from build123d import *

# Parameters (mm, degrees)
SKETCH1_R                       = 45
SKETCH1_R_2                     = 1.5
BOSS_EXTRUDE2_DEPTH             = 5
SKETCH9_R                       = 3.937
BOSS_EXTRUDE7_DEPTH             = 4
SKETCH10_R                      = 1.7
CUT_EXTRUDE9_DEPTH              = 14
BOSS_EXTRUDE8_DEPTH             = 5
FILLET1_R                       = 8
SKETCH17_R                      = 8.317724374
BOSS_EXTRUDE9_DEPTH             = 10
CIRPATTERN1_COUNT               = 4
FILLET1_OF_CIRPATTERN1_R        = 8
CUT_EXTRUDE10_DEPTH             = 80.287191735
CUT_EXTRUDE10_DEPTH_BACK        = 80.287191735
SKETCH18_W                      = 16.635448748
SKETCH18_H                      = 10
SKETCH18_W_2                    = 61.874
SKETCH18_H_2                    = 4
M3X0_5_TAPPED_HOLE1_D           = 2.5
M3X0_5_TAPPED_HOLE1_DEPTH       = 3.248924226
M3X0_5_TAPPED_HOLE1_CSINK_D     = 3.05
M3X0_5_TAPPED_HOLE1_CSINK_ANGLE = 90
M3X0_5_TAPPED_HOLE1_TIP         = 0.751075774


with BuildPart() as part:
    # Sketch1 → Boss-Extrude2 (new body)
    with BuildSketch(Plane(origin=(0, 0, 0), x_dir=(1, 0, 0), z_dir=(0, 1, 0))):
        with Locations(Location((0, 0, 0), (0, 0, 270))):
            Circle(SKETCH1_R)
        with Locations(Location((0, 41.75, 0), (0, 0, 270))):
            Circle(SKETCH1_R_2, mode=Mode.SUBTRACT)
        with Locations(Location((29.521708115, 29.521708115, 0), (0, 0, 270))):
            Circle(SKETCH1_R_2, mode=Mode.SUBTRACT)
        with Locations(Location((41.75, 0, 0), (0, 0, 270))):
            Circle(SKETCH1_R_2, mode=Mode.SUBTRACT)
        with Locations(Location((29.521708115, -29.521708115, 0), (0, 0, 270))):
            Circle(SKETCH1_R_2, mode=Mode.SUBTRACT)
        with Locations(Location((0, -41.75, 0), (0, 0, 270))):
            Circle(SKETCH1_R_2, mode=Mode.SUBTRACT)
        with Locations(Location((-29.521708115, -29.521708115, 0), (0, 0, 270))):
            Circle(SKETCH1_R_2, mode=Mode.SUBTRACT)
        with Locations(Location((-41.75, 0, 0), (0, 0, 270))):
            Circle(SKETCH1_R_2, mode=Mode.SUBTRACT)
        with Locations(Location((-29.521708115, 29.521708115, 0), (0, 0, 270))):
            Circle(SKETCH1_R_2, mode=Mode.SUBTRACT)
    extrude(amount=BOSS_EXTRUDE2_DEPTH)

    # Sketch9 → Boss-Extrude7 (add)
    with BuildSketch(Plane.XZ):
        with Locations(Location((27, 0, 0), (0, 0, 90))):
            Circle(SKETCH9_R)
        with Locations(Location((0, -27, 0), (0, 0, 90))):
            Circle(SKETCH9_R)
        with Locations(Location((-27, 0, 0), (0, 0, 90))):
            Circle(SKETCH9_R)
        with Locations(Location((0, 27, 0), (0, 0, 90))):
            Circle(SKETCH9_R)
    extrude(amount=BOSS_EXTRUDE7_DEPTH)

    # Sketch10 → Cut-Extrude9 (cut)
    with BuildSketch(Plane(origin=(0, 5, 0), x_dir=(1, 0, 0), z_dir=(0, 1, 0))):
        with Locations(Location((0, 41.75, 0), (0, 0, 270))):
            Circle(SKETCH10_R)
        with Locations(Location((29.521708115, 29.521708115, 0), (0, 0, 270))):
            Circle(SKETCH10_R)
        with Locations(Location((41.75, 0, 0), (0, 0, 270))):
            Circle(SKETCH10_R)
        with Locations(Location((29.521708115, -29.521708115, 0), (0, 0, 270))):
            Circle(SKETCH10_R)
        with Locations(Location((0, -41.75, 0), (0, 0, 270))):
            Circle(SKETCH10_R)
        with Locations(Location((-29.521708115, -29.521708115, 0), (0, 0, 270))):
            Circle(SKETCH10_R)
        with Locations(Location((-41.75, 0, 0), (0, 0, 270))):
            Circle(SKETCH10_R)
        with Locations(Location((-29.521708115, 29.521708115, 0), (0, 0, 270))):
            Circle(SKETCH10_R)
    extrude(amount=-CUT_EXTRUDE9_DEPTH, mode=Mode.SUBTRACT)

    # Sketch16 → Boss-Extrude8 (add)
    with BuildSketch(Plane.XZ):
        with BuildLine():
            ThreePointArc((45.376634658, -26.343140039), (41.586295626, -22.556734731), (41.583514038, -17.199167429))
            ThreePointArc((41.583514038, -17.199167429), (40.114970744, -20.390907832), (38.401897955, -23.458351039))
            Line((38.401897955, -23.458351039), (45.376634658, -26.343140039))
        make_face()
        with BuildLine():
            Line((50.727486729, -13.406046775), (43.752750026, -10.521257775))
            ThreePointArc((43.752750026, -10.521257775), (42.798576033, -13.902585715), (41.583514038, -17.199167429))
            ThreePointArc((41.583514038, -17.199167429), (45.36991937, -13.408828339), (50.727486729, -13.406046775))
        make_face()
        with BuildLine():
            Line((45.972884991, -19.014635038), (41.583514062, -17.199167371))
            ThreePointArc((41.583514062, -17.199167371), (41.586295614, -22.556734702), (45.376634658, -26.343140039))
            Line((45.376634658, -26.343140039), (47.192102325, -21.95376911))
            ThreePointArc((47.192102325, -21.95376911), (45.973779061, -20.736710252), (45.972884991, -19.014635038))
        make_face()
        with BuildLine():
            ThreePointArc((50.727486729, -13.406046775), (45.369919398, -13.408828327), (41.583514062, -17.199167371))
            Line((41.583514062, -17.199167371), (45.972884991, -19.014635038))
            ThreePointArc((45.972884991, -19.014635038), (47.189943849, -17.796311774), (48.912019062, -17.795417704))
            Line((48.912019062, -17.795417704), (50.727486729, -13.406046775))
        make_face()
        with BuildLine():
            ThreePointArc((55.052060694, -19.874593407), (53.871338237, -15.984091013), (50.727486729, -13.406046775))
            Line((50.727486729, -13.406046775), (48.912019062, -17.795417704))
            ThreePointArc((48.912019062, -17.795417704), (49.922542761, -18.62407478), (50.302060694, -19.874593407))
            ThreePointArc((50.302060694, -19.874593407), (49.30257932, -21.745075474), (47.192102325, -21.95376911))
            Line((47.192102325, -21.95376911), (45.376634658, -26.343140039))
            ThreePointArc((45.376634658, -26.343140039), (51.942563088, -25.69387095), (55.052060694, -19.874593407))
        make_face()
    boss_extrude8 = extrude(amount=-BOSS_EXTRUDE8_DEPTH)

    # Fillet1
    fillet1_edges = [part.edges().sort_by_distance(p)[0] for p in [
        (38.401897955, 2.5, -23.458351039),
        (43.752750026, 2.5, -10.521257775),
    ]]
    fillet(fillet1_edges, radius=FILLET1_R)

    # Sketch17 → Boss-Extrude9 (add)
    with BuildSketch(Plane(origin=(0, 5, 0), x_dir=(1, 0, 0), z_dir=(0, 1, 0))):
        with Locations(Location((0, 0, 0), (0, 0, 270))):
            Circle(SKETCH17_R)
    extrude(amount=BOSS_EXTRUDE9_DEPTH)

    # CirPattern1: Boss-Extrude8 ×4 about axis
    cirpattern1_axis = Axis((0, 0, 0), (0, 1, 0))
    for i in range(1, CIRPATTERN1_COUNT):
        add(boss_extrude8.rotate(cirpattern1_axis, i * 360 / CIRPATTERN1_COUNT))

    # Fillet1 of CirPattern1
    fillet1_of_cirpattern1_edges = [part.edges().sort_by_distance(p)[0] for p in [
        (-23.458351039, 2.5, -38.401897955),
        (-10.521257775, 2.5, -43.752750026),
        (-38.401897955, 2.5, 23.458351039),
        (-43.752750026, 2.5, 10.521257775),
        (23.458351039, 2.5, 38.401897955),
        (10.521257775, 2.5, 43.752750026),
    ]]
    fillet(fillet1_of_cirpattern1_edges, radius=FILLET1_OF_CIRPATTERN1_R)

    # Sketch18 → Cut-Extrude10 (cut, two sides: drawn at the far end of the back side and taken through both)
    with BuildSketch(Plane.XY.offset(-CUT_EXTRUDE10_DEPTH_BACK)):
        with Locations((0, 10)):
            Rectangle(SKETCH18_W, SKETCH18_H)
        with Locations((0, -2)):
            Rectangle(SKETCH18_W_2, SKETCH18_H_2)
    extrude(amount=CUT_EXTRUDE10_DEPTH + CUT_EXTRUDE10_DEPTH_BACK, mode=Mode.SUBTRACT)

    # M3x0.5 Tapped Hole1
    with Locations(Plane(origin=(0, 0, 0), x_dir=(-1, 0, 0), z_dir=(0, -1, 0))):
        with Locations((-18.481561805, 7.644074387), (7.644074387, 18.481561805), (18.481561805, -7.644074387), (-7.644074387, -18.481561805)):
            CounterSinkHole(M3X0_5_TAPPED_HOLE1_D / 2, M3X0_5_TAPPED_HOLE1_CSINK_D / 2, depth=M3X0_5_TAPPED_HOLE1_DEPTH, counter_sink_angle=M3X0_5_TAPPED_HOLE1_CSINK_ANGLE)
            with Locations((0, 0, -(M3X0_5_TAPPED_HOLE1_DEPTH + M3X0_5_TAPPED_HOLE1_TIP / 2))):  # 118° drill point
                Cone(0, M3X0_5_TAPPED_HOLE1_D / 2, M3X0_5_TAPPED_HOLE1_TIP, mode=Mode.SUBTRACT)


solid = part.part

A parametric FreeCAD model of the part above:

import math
import FreeCAD as App
import Part
import Sketcher

V = App.Vector
Q = App.Units.Quantity


def edges_at(feature, points):
    """Names of the edges that pass closest to the given points."""
    edges = feature.Shape.Edges
    near = lambda p: min(range(len(edges)), key=lambda i: edges[i].distToShape(Part.Vertex(*p))[0])
    return sorted({f"Edge{near(p) + 1}" for p in points})


def add_polygon(sketch, points):
    """Adds a closed chain of lines whose ends are joined by coincident constraints."""
    first, n = sketch.GeometryCount, len(points)
    for a, b in zip(points, points[1:] + points[:1]):
        sketch.addGeometry(Part.LineSegment(App.Vector(*a, 0), App.Vector(*b, 0)), False)
    for i in range(n):
        sketch.addConstraint(Sketcher.Constraint("Coincident", first + i, 2, first + (i + 1) % n, 1))

doc = App.newDocument("Part")
body = doc.addObject("PartDesign::Body", "Body")

# Sketch on XZ plane
sketch1 = body.newObject("Sketcher::SketchObject", "Sketch")
sketch1.AttachmentSupport = (doc.getObject("XZ_Plane"), [""])
sketch1.MapMode = "FlatFace"
sketch1.addGeometry([
    Part.Circle(V(0, 0, 0), V(0, 0, 1), 45),  # 0
    Part.Circle(V(-29.5, -29.5, 0), V(0, 0, 1), 1.5),  # 1
    Part.Circle(V(0, -41.8, 0), V(0, 0, 1), 1.5),  # 2
    Part.Circle(V(-41.8, 0, 0), V(0, 0, 1), 1.5),  # 3
    Part.Circle(V(-29.5, 29.5, 0), V(0, 0, 1), 1.5),  # 4
    Part.Circle(V(29.5, -29.5, 0), V(0, 0, 1), 1.5),  # 5
    Part.Circle(V(41.8, 0, 0), V(0, 0, 1), 1.5),  # 6
    Part.Circle(V(0, 41.8, 0), V(0, 0, 1), 1.5),  # 7
    Part.Circle(V(29.5, 29.5, 0), V(0, 0, 1), 1.5),  # 8
], False)
sketch1.addConstraint([
    Sketcher.Constraint("Coincident", 0, 3, -1, 1),
    Sketcher.Constraint("Equal", 1, 2),
    Sketcher.Constraint("Equal", 2, 3),
    Sketcher.Constraint("Equal", 3, 4),
    Sketcher.Constraint("Equal", 4, 5),
    Sketcher.Constraint("Equal", 5, 6),
    Sketcher.Constraint("Equal", 6, 7),
    Sketcher.Constraint("Equal", 7, 8),
    Sketcher.Constraint("Symmetric", 4, 3, 5, 3, -1, 1),
    Sketcher.Constraint("Symmetric", 3, 3, 6, 3, -1, 1),
    Sketcher.Constraint("Symmetric", 2, 3, 7, 3, -1, 1),
    Sketcher.Constraint("Symmetric", 1, 3, 8, 3, -1, 1),
    Sketcher.Constraint("Symmetric", 1, 3, 5, 3, -2),
    Sketcher.Constraint("PointOnObject", 2, 3, -2),
    Sketcher.Constraint("PointOnObject", 3, 3, -1),
    Sketcher.Constraint("Diameter", 0, Q("90 mm")),
    Sketcher.Constraint("Diameter", 1, Q("3 mm")),
    Sketcher.Constraint("DistanceY", 2, 3, -1, 1, Q("41.75 mm")),
    Sketcher.Constraint("DistanceX", 3, 3, -1, 1, Q("41.75 mm")),
    Sketcher.Constraint("DistanceX", 1, 3, -1, 1, Q("29.521708 mm")),
    Sketcher.Constraint("DistanceY", 1, 3, -1, 1, Q("29.521708 mm")),
])
pad1 = body.newObject("PartDesign::Pad", "Pad")
pad1.Profile = sketch1
pad1.Length = 5
pad1.Reversed = True

# Sketch on XZ plane
sketch2 = body.newObject("Sketcher::SketchObject", "Sketch001")
sketch2.AttachmentSupport = (doc.getObject("XZ_Plane"), [""])
sketch2.MapMode = "FlatFace"
sketch2.addGeometry([
    Part.Circle(V(27, 0, 0), V(0, 0, 1), 3.9),
    Part.Circle(V(0, -27, 0), V(0, 0, 1), 3.9),
    Part.Circle(V(-27, 0, 0), V(0, 0, 1), 3.9),
    Part.Circle(V(0, 27, 0), V(0, 0, 1), 3.9),
], False)
sketch2.addConstraint([
    Sketcher.Constraint("Equal", 0, 1),
    Sketcher.Constraint("Equal", 1, 2),
    Sketcher.Constraint("Equal", 2, 3),
    Sketcher.Constraint("Symmetric", 0, 3, 2, 3, -1, 1),
    Sketcher.Constraint("Symmetric", 1, 3, 3, 3, -1, 1),
    Sketcher.Constraint("PointOnObject", 0, 3, -1),
    Sketcher.Constraint("PointOnObject", 1, 3, -2),
    Sketcher.Constraint("Diameter", 0, Q("7.874 mm")),
    Sketcher.Constraint("DistanceX", -1, 1, 0, 3, Q("27 mm")),
    Sketcher.Constraint("DistanceY", 1, 3, -1, 1, Q("27 mm")),
])
pad2 = body.newObject("PartDesign::Pad", "Pad001")
pad2.Profile = sketch2
pad2.Length = 4

# Sketch on XZ plane
sketch3 = body.newObject("Sketcher::SketchObject", "Sketch002")
sketch3.AttachmentSupport = (doc.getObject("XZ_Plane"), [""])
sketch3.MapMode = "FlatFace"
sketch3.AttachmentOffset = App.Placement(V(0, 0, -5), App.Rotation())
sketch3.addGeometry([
    Part.Circle(V(0, -41.8, 0), V(0, 0, 1), 1.7),  # 0
    Part.Circle(V(29.5, -29.5, 0), V(0, 0, 1), 1.7),  # 1
    Part.Circle(V(41.8, 0, 0), V(0, 0, 1), 1.7),  # 2
    Part.Circle(V(29.5, 29.5, 0), V(0, 0, 1), 1.7),  # 3
    Part.Circle(V(0, 41.8, 0), V(0, 0, 1), 1.7),  # 4
    Part.Circle(V(-29.5, 29.5, 0), V(0, 0, 1), 1.7),  # 5
    Part.Circle(V(-41.8, 0, 0), V(0, 0, 1), 1.7),  # 6
    Part.Circle(V(-29.5, -29.5, 0), V(0, 0, 1), 1.7),  # 7
], False)
sketch3.addConstraint([
    Sketcher.Constraint("Equal", 0, 1),
    Sketcher.Constraint("Equal", 1, 2),
    Sketcher.Constraint("Equal", 2, 3),
    Sketcher.Constraint("Equal", 3, 4),
    Sketcher.Constraint("Equal", 4, 5),
    Sketcher.Constraint("Equal", 5, 6),
    Sketcher.Constraint("Equal", 6, 7),
    Sketcher.Constraint("Symmetric", 0, 3, 4, 3, -1, 1),
    Sketcher.Constraint("Symmetric", 1, 3, 5, 3, -1, 1),
    Sketcher.Constraint("Symmetric", 2, 3, 6, 3, -1, 1),
    Sketcher.Constraint("Symmetric", 3, 3, 7, 3, -1, 1),
    Sketcher.Constraint("Symmetric", 3, 3, 5, 3, -2),
    Sketcher.Constraint("PointOnObject", 0, 3, -2),
    Sketcher.Constraint("PointOnObject", 2, 3, -1),
    Sketcher.Constraint("Diameter", 0, Q("3.4 mm")),
    Sketcher.Constraint("DistanceY", 0, 3, 4, 3, Q("83.5 mm")),
    Sketcher.Constraint("DistanceX", -1, 1, 2, 3, Q("41.75 mm")),
    Sketcher.Constraint("DistanceX", -1, 1, 1, 3, Q("29.521708 mm")),
    Sketcher.Constraint("DistanceY", 1, 3, -1, 1, Q("29.521708 mm")),
])
pocket1 = body.newObject("PartDesign::Pocket", "Pocket")
pocket1.Profile = sketch3
pocket1.Length = 14
pocket1.Reversed = True

# Sketch on XZ plane
sketch4 = body.newObject("Sketcher::SketchObject", "Sketch003")
sketch4.AttachmentSupport = (doc.getObject("XZ_Plane"), [""])
sketch4.MapMode = "FlatFace"
sketch4.addGeometry([
    Part.ArcOfCircle(Part.Circle(V(0, 0, 0), V(0, 0, 1), 45), math.radians(-31.42), math.radians(-22.47)),  # 0
    Part.LineSegment(V(38.4, -23.5, 0), V(45.4, -26.3, 0)),  # 1
    Part.ArcOfCircle(Part.Circle(V(48.1, -19.9, 0), V(0, 0, 1), 7), math.radians(-112), math.radians(0)),  # 2
    Part.ArcOfCircle(Part.Circle(V(48.1, -19.9, 0), V(0, 0, 1), 7), math.radians(0), math.radians(68)),  # 3
    Part.LineSegment(V(50.7, -13.4, 0), V(43.8, -10.5, 0)),  # 4
    Part.ArcOfCircle(Part.Circle(V(0, 0, 0), V(0, 0, 1), 45), math.radians(-22.47), math.radians(-13.52)),  # 5
    Part.ArcOfCircle(Part.Circle(V(48.1, -19.9, 0), V(0, 0, 1), 2.2), math.radians(158), math.radians(248)),  # 6
    Part.ArcOfCircle(Part.Circle(V(48.1, -19.9, 0), V(0, 0, 1), 2.2), math.radians(68), math.radians(158)),  # 7
    Part.ArcOfCircle(Part.Circle(V(48.1, -19.9, 0), V(0, 0, 1), 2.2), math.radians(0), math.radians(68)),  # 8
    Part.ArcOfCircle(Part.Circle(V(48.1, -19.9, 0), V(0, 0, 1), 2.3), math.radians(-112), math.radians(0)),  # 9
], False)
sketch4.addConstraint([
    Sketcher.Constraint("Coincident", 0, 1, 1, 1),
    Sketcher.Constraint("Tangent", 1, 2, 2, 1),
    Sketcher.Constraint("Tangent", 2, 2, 3, 1),
    Sketcher.Constraint("Tangent", 3, 2, 4, 1),
    Sketcher.Constraint("Coincident", 4, 2, 5, 2),
    Sketcher.Constraint("Tangent", 5, 1, 0, 2),
    Sketcher.Constraint("Tangent", 6, 1, 7, 2),
    Sketcher.Constraint("Tangent", 7, 1, 8, 2),
    Sketcher.Constraint("Tangent", 8, 1, 9, 2),
    Sketcher.Constraint("Tangent", 9, 1, 6, 2),
    Sketcher.Constraint("Coincident", 0, 3, -1, 1),
    Sketcher.Constraint("Coincident", 6, 3, 2, 3),
    Sketcher.Constraint("Equal", 2, 3),
    Sketcher.Constraint("Equal", 0, 5),
    Sketcher.Constraint("Equal", 6, 7),
    Sketcher.Constraint("Parallel", 1, 4),
    Sketcher.Constraint("Horizontal", 9, 3, 2, 2),
    Sketcher.Constraint("Horizontal", 2, 2, 8, 1),
    Sketcher.Constraint("Equal", 1, 4),
    Sketcher.Constraint("Radius", 0, Q("45 mm")),
    Sketcher.Constraint("Radius", 2, Q("7 mm")),
    Sketcher.Constraint("Radius", 6, Q("2.25 mm")),
    Sketcher.Constraint("Distance", 1, Q("7.547778 mm")),
    Sketcher.Constraint("DistanceX", -1, 1, 2, 3, Q("48.052061 mm")),
    Sketcher.Constraint("DistanceX", -1, 1, 7, 1, Q("48.912019 mm")),
    Sketcher.Constraint("DistanceY", 9, 1, -1, 1, Q("21.953769 mm")),
    Sketcher.Constraint("DistanceY", 7, 3, 6, 1, Q("0.859958 mm")),
    Sketcher.Constraint("DistanceX", -1, 1, 5, 1, Q("41.583514 mm")),
])
pad3 = body.newObject("PartDesign::Pad", "Pad002")
pad3.Profile = sketch4
pad3.Length = 5
pad3.Reversed = True
doc.recompute()

fillet = body.newObject("PartDesign::Fillet", "Fillet")
fillet.Base = (pad3, edges_at(pad3, [(38.402, 2.5, -23.458), (43.753, 2.5, -10.521)]))
fillet.Radius = 8

# Sketch on XZ plane
sketch5 = body.newObject("Sketcher::SketchObject", "Sketch004")
sketch5.AttachmentSupport = (doc.getObject("XZ_Plane"), [""])
sketch5.MapMode = "FlatFace"
sketch5.AttachmentOffset = App.Placement(V(0, 0, -5), App.Rotation())
sketch5.addGeometry(Part.Circle(V(0, 0, 0), V(0, 0, 1), 8), False)
sketch5.addConstraint([
    Sketcher.Constraint("Coincident", 0, 3, -1, 1),
    Sketcher.Constraint("Diameter", 0, Q("16.635449 mm")),
])
pad4 = body.newObject("PartDesign::Pad", "Pad003")
pad4.Profile = sketch5
pad4.Length = 10
pad4.Reversed = True
doc.recompute()

polarpattern = body.newObject("PartDesign::PolarPattern", "PolarPattern")
polarpattern.Originals = [pad3]
polarpattern.Axis = (doc.getObject("Y_Axis"), [""])
polarpattern.Angle = 360
polarpattern.Occurrences = 4
body.Tip = polarpattern
doc.recompute()

fillet2 = body.newObject("PartDesign::Fillet", "Fillet001")
fillet2.Base = (polarpattern, edges_at(polarpattern, [
    (-23.458, 2.5, -38.402),
    (-10.521, 2.5, -43.753),
    (-38.402, 2.5, 23.458),
    (-43.753, 2.5, 10.521),
    (23.458, 2.5, 38.402),
    (10.521, 2.5, 43.753),
]))
fillet2.Radius = 8

# Sketch on XY plane
sketch6 = body.newObject("Sketcher::SketchObject", "Sketch005")
sketch6.AttachmentSupport = (doc.getObject("XY_Plane"), [""])
sketch6.MapMode = "FlatFace"
add_polygon(sketch6, [(-8.3, 15), (-8.3, 5), (8.3, 5), (8.3, 15)])  # lines 0-3
add_polygon(sketch6, [(-30.9, 0), (-30.9, -4), (30.9, -4), (30.9, 0)])  # lines 4-7
sketch6.addConstraint([
    Sketcher.Constraint("Vertical", 0),
    Sketcher.Constraint("Horizontal", 1),
    Sketcher.Constraint("Vertical", 2),
    Sketcher.Constraint("Horizontal", 3),
    Sketcher.Constraint("Vertical", 4),
    Sketcher.Constraint("Horizontal", 5),
    Sketcher.Constraint("Vertical", 6),
    Sketcher.Constraint("Horizontal", 7),
    Sketcher.Constraint("Symmetric", 6, 2, 7, 2, -1, 1),
    Sketcher.Constraint("DistanceY", 0, 2, 0, 1, Q("10 mm")),
    Sketcher.Constraint("DistanceY", 4, 2, 4, 1, Q("4 mm")),
    Sketcher.Constraint("DistanceY", -1, 1, 0, 2, Q("5 mm")),
    Sketcher.Constraint("DistanceX", 5, 1, 5, 2, Q("61.874 mm")),
    Sketcher.Constraint("DistanceX", 1, 1, 1, 2, Q("16.635449 mm")),
    Sketcher.Constraint("DistanceX", 0, 2, -1, 1, Q("8.317724 mm")),
])
pocket2 = body.newObject("PartDesign::Pocket", "Pocket001")
pocket2.Profile = sketch6
pocket2.Type = "ThroughAll"
pocket2.Midplane = True

# Sketch on XZ plane
sketch7 = body.newObject("Sketcher::SketchObject", "Sketch006")
sketch7.AttachmentSupport = (doc.getObject("XZ_Plane"), [""])
sketch7.MapMode = "FlatFace"
sketch7.addGeometry([
    Part.Circle(V(18.5, -7.6, 0), V(0, 0, 1), 1.2),
    Part.Circle(V(-7.6, -18.5, 0), V(0, 0, 1), 1.2),
    Part.Circle(V(-18.5, 7.6, 0), V(0, 0, 1), 1.2),
    Part.Circle(V(7.6, 18.5, 0), V(0, 0, 1), 1.2),
], False)
sketch7.addConstraint([
    Sketcher.Constraint("Equal", 0, 1),
    Sketcher.Constraint("Equal", 1, 2),
    Sketcher.Constraint("Equal", 2, 3),
    Sketcher.Constraint("Symmetric", 0, 3, 2, 3, -1, 1),
    Sketcher.Constraint("Symmetric", 1, 3, 3, 3, -1, 1),
    Sketcher.Constraint("Diameter", 0, Q("2.5 mm")),
    Sketcher.Constraint("DistanceX", -1, 1, 0, 3, Q("18.481562 mm")),
    Sketcher.Constraint("DistanceY", 1, 3, -1, 1, Q("18.481562 mm")),
    Sketcher.Constraint("DistanceY", 0, 3, 2, 3, Q("15.288149 mm")),
    Sketcher.Constraint("DistanceX", 1, 3, 3, 3, Q("15.288149 mm")),
])
doc.recompute()
hole = body.newObject("PartDesign::Hole", "Hole")
hole.Profile = sketch7
hole.ThreadType = "None"
hole.Diameter = 2.5
hole.DepthType = "Dimension"
hole.Depth = 3.248924
hole.DrillPoint = "Angled"
hole.DrillPointAngle = 118
hole.HoleCutType = "Countersink"
hole.HoleCutDiameter = 3.05
hole.HoleCutCountersinkAngle = 90

doc.recompute()
